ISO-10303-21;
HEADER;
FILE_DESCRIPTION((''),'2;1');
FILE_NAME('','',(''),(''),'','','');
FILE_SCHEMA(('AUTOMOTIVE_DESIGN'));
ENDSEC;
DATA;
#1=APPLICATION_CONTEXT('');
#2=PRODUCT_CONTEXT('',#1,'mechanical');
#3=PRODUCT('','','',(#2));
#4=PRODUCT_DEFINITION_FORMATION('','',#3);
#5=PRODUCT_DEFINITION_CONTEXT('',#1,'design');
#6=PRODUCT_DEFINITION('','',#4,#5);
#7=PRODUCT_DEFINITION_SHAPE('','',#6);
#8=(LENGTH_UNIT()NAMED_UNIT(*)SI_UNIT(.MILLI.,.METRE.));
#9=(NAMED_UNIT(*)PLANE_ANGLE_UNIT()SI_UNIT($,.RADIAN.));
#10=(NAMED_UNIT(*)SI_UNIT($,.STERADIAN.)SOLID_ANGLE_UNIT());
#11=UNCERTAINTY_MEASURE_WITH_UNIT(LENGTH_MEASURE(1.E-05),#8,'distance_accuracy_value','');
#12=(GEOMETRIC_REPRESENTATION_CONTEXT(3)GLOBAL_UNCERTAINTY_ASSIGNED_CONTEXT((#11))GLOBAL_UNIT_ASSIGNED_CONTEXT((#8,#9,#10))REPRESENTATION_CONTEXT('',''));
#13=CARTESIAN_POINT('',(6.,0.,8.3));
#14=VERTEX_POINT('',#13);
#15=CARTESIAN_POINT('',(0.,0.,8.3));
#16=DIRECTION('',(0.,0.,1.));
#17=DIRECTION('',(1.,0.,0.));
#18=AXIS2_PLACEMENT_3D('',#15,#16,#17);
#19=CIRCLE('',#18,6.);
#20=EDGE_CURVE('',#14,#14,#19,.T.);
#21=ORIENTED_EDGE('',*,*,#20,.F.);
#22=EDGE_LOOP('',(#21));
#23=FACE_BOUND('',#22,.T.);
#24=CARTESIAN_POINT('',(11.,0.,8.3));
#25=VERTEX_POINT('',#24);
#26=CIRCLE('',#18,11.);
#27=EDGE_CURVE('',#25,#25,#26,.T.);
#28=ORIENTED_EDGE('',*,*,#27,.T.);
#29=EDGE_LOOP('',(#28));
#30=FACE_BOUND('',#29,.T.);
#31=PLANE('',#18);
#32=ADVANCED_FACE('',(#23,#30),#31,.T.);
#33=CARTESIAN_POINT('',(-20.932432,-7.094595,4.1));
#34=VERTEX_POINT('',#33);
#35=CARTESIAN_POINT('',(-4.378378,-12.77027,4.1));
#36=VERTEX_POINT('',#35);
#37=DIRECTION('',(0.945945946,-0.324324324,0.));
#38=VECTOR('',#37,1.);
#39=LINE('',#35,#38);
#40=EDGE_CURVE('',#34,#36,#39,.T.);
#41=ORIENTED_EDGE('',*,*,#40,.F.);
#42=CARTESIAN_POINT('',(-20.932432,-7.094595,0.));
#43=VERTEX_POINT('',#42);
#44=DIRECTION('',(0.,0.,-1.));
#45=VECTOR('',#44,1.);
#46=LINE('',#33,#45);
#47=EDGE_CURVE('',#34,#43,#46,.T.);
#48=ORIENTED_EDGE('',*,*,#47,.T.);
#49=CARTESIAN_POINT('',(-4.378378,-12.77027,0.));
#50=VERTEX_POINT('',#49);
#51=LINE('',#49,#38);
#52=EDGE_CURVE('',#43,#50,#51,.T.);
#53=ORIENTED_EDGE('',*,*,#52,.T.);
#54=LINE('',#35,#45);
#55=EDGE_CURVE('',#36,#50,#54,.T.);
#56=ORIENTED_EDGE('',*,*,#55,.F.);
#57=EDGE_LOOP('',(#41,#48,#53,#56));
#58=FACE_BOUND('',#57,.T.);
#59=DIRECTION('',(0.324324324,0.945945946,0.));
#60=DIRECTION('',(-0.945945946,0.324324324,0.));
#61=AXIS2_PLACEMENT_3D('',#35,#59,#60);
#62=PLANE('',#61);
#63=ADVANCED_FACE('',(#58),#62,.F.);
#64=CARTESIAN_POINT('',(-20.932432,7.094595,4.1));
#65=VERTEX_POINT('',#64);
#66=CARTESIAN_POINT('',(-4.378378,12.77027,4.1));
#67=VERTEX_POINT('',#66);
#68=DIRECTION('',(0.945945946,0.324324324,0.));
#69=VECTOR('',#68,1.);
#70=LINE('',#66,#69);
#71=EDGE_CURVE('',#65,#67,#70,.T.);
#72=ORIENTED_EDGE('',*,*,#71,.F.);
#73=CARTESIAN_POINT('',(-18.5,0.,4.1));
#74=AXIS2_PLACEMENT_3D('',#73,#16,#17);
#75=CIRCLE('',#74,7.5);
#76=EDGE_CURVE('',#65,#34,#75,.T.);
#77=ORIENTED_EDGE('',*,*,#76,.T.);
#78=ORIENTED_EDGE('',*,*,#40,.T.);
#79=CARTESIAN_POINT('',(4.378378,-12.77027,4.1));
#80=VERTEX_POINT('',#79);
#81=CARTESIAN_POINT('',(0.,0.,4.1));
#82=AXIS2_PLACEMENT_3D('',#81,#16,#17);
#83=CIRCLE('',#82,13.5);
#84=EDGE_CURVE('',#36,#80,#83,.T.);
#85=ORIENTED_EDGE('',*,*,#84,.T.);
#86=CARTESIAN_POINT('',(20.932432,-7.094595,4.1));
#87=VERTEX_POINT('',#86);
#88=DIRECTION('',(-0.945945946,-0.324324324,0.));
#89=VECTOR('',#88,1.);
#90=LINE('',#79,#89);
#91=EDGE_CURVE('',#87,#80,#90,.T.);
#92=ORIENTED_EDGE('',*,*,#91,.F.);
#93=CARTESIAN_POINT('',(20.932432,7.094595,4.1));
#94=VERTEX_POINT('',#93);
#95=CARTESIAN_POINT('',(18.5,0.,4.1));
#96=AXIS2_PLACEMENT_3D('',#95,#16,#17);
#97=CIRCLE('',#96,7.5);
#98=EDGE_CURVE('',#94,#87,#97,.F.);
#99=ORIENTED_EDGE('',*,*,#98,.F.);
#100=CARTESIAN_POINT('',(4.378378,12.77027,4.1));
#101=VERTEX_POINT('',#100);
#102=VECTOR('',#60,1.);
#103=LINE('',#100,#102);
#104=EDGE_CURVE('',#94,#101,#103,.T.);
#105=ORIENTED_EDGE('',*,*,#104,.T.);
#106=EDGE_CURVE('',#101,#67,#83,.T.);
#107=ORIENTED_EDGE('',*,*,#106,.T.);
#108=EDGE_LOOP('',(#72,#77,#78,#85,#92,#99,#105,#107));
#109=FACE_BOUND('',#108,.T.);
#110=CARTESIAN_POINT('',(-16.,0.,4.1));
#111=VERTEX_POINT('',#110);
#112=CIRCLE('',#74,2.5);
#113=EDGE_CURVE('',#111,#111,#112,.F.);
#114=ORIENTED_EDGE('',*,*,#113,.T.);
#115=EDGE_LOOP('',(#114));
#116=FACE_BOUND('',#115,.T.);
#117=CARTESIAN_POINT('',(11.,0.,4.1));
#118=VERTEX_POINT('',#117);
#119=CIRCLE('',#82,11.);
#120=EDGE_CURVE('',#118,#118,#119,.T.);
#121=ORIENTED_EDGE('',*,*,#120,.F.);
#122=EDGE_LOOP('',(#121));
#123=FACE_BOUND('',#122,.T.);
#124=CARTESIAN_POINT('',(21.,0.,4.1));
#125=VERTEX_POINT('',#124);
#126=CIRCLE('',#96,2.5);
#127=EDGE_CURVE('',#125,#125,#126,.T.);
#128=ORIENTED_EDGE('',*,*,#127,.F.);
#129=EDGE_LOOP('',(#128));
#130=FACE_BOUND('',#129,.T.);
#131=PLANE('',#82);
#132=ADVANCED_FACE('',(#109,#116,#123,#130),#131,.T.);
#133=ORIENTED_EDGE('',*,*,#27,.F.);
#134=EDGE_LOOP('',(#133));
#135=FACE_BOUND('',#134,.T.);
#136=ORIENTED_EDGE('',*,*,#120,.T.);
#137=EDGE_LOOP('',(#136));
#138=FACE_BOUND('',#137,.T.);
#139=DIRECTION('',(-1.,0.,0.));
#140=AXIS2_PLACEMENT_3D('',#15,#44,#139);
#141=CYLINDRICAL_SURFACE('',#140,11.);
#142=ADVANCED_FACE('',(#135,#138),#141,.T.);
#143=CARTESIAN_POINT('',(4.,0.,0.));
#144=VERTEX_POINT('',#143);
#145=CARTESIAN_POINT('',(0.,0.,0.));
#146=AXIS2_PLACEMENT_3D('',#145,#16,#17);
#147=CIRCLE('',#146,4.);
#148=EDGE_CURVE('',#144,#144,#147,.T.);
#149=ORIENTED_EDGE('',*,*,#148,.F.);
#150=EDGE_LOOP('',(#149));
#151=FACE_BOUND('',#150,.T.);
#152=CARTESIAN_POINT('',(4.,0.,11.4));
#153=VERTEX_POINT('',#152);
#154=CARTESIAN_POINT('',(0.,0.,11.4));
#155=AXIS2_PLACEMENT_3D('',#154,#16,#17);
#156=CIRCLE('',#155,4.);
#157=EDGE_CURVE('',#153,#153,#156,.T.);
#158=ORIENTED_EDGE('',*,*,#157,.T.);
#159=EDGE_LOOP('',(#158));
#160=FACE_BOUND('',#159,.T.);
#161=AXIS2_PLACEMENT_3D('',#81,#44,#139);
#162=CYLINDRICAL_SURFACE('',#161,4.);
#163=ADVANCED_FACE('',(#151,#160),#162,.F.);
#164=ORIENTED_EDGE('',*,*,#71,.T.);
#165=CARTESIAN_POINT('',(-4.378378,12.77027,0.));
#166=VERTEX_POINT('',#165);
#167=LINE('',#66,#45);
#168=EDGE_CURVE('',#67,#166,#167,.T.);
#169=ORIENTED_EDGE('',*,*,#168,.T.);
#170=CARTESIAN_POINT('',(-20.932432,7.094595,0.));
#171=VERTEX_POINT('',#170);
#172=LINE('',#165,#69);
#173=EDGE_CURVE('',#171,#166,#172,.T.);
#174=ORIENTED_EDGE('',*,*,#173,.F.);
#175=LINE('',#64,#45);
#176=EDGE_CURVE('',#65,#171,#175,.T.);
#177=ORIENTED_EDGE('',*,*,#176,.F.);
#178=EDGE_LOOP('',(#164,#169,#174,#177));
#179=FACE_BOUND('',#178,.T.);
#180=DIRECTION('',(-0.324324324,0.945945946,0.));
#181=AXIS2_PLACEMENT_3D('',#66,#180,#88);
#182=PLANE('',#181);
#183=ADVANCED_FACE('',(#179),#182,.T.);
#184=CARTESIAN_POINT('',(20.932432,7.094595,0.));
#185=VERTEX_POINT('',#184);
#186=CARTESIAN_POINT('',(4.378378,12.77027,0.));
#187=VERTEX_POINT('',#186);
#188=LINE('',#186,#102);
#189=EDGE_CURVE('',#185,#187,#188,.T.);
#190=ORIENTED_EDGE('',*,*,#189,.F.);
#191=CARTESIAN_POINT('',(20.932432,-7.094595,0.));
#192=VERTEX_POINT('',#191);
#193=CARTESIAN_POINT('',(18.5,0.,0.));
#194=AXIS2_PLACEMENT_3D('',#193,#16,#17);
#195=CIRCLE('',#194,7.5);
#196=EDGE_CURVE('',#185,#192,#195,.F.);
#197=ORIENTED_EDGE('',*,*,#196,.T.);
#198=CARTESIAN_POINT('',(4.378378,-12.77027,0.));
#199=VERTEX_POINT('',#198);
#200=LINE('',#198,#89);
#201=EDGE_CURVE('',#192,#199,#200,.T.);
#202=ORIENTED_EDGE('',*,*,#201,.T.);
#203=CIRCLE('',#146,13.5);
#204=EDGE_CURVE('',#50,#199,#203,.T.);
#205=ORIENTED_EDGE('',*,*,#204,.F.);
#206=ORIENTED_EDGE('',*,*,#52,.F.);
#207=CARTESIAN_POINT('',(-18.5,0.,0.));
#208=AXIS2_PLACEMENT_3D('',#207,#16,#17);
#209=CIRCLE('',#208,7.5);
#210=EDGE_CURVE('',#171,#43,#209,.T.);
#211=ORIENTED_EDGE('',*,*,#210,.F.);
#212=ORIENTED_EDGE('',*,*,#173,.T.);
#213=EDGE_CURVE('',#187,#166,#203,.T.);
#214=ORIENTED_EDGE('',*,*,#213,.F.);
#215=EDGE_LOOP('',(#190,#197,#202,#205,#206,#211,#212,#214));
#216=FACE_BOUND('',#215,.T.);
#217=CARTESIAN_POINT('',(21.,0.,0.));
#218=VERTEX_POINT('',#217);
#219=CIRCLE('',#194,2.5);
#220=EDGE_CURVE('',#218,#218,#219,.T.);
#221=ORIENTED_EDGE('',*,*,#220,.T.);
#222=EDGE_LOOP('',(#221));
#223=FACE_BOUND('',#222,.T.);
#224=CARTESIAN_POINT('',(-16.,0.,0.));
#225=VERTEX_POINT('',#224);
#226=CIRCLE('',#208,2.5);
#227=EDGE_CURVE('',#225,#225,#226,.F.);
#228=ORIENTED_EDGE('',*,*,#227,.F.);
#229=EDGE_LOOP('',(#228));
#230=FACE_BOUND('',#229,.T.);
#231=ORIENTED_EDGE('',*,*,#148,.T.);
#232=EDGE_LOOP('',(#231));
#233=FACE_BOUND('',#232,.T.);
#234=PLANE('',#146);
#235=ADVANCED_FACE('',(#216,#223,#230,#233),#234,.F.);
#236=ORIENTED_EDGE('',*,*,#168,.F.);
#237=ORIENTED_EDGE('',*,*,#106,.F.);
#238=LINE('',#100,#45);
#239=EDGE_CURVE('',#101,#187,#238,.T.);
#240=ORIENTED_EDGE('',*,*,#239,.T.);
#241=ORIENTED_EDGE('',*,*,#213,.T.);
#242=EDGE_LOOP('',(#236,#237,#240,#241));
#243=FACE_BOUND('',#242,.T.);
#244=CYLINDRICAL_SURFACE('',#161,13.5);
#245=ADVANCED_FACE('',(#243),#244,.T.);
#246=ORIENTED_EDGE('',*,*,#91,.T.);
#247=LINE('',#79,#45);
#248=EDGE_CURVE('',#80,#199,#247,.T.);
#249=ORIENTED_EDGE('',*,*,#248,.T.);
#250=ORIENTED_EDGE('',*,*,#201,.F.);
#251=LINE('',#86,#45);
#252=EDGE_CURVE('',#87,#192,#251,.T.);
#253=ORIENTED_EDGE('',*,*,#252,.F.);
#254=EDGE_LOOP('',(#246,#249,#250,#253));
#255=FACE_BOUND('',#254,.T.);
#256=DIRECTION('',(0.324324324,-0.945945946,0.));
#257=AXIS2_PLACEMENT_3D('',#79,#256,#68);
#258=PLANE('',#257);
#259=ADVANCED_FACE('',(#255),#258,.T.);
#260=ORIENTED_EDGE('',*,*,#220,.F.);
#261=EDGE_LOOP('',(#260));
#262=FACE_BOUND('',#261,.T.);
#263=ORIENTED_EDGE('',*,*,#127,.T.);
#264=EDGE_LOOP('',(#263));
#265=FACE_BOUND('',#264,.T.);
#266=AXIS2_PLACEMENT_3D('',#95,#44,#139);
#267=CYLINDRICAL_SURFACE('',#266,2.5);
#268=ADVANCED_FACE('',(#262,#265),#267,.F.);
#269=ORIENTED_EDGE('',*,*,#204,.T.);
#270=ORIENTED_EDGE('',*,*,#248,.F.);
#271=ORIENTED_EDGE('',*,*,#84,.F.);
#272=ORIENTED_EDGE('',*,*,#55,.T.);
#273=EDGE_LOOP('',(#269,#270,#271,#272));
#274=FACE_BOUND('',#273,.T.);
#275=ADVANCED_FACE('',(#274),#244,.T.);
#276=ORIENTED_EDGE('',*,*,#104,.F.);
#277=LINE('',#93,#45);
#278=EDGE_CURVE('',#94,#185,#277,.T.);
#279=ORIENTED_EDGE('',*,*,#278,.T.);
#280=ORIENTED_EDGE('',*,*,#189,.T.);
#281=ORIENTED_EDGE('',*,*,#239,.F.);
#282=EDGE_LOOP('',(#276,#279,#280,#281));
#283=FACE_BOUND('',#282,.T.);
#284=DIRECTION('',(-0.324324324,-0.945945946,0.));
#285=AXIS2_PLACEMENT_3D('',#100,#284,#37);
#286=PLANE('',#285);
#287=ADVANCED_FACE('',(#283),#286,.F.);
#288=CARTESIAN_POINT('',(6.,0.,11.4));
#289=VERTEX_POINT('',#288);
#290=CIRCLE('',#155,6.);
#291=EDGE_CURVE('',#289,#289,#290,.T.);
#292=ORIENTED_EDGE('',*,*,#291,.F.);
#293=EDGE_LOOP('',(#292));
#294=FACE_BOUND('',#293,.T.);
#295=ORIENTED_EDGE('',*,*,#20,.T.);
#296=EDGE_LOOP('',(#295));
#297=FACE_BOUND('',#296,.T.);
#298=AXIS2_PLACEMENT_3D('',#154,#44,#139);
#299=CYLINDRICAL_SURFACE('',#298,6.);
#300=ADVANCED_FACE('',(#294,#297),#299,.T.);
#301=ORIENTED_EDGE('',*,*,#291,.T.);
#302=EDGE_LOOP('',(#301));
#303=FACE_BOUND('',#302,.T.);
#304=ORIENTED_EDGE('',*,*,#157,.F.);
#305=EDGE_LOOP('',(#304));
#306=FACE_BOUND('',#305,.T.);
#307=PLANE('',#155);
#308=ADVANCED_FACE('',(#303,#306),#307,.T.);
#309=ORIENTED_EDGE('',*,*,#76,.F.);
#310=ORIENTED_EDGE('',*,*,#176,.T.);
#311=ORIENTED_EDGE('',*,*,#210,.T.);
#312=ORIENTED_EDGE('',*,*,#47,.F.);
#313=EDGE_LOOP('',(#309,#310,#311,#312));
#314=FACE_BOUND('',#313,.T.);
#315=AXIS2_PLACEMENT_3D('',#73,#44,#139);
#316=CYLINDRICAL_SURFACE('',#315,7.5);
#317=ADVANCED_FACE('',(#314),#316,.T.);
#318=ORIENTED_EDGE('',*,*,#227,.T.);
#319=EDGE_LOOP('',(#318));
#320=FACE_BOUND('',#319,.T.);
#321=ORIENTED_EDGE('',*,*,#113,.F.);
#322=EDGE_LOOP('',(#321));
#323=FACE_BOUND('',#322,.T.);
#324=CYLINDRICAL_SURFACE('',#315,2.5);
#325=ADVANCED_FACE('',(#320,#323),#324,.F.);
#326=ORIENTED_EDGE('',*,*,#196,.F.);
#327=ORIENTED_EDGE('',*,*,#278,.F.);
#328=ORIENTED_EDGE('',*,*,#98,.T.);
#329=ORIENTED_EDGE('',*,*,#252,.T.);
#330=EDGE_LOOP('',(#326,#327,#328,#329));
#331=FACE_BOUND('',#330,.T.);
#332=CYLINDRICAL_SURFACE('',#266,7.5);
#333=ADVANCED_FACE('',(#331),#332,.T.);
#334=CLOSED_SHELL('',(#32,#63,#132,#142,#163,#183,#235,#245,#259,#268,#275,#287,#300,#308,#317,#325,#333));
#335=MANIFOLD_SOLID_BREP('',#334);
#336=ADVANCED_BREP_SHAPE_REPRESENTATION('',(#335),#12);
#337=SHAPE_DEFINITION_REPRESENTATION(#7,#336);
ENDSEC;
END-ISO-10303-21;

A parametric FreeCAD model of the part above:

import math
import FreeCAD as App
import Part
import Sketcher
from FreeCAD import Vector

doc = App.newDocument("Part")
params = doc.addObject("Spreadsheet::Sheet", "Params")
for row, (alias, value) in enumerate([
    ("sketch1_diameter", "5 mm"),
    ("sketch1_diameter2", "8 mm"),
    ("sketch1_radius", "7.5 mm"),
    ("sketch1_radius2", "13.5 mm"),
    ("pad1_length", "4.1 mm"),
    ("sketch2_diameter", "12 mm"),
    ("sketch2_diameter2", "8 mm"),
    ("pad2_length", "11.4 mm"),
    ("sketch3_diameter", "22 mm"),
    ("sketch3_diameter2", "12 mm"),
    ("pad3_length", "4.2 mm"),
], start=1):
    params.set(f"A{row}", alias)
    params.set(f"B{row}", "=" + value)
    params.setAlias(f"B{row}", alias)

body = doc.addObject("PartDesign::Body", "Body")

# Sketch on XY plane
sketch1 = body.newObject("Sketcher::SketchObject", "Sketch")
sketch1.AttachmentSupport = (doc.getObject("XY_Plane"), [""])
sketch1.MapMode = "FlatFace"
sketch1.addGeometry([
    Part.ArcOfCircle(Part.Circle(Vector(18.5, 0, 0), Vector(0, 0, 1), 7.5), math.radians(-71), math.radians(71)),  # 0
    Part.LineSegment(Vector(20.9, 7.1, 0), Vector(4.4, 12.8, 0)),  # 1
    Part.ArcOfCircle(Part.Circle(Vector(0, 0, 0), Vector(0, 0, 1), 13.5), math.radians(71), math.radians(109)),  # 2
    Part.LineSegment(Vector(-4.4, 12.8, 0), Vector(-20.9, 7.1, 0)),  # 3
    Part.ArcOfCircle(Part.Circle(Vector(-18.5, 0, 0), Vector(0, 0, 1), 7.5), math.radians(109), math.radians(251)),  # 4
    Part.LineSegment(Vector(-20.9, -7.1, 0), Vector(-4.4, -12.8, 0)),  # 5
    Part.ArcOfCircle(Part.Circle(Vector(0, 0, 0), Vector(0, 0, 1), 13.5), math.radians(-109), math.radians(-71)),  # 6
    Part.LineSegment(Vector(4.4, -12.8, 0), Vector(20.9, -7.1, 0)),  # 7
    Part.Circle(Vector(-18.5, 0, 0), Vector(0, 0, 1), 2.5),  # 8
    Part.Circle(Vector(0, 0, 0), Vector(0, 0, 1), 4),  # 9
    Part.Circle(Vector(18.5, 0, 0), Vector(0, 0, 1), 2.5),  # 10
], False)
sketch1.addConstraint([
    Sketcher.Constraint("Tangent", 0, 2, 1, 1),
    Sketcher.Constraint("Tangent", 1, 2, 2, 1),
    Sketcher.Constraint("Tangent", 2, 2, 3, 1),
    Sketcher.Constraint("Tangent", 3, 2, 4, 1),
    Sketcher.Constraint("Tangent", 4, 2, 5, 1),
    Sketcher.Constraint("Tangent", 5, 2, 6, 1),
    Sketcher.Constraint("Tangent", 6, 2, 7, 1),
    Sketcher.Constraint("Tangent", 7, 2, 0, 1),
    Sketcher.Constraint("Coincident", 2, 3, -1, 1),
    Sketcher.Constraint("Coincident", 6, 3, -1, 1),
    Sketcher.Constraint("Coincident", 9, 3, -1, 1),
    Sketcher.Constraint("Coincident", 8, 3, 4, 3),
    Sketcher.Constraint("Coincident", 10, 3, 0, 3),
    Sketcher.Constraint("Equal", 0, 4),
    Sketcher.Constraint("Equal", 2, 6),
    Sketcher.Constraint("Equal", 8, 10),
    Sketcher.Constraint("Symmetric", 0, 3, 4, 3, -1, 1),
    Sketcher.Constraint("PointOnObject", 0, 3, -1),
    Sketcher.Constraint("Diameter", 8, 5.0),
    Sketcher.Constraint("Diameter", 9, 8.0),
    Sketcher.Constraint("Radius", 0, 7.5),
    Sketcher.Constraint("Radius", 2, 13.5),
    Sketcher.Constraint("DistanceX", 4, 3, 0, 3, 37.0),
])
sketch1.setExpression("Constraints[18]", "Params.sketch1_diameter")
sketch1.setExpression("Constraints[19]", "Params.sketch1_diameter2")
sketch1.setExpression("Constraints[20]", "Params.sketch1_radius")
sketch1.setExpression("Constraints[21]", "Params.sketch1_radius2")
pad1 = body.newObject("PartDesign::Pad", "Pad")
pad1.Profile = sketch1
pad1.setExpression("Length", "Params.pad1_length")

# Sketch on XY plane
sketch2 = body.newObject("Sketcher::SketchObject", "Sketch001")
sketch2.AttachmentSupport = (doc.getObject("XY_Plane"), [""])
sketch2.MapMode = "FlatFace"
sketch2.addGeometry([
    Part.Circle(Vector(0, 0, 0), Vector(0, 0, 1), 6),
    Part.Circle(Vector(0, 0, 0), Vector(0, 0, 1), 4),
], False)
sketch2.addConstraint([
    Sketcher.Constraint("Coincident", 0, 3, -1, 1),
    Sketcher.Constraint("Coincident", 1, 3, -1, 1),
    Sketcher.Constraint("Diameter", 0, 12.0),
    Sketcher.Constraint("Diameter", 1, 8.0),
])
sketch2.setExpression("Constraints[2]", "Params.sketch2_diameter")
sketch2.setExpression("Constraints[3]", "Params.sketch2_diameter2")
pad2 = body.newObject("PartDesign::Pad", "Pad001")
pad2.Profile = sketch2
pad2.setExpression("Length", "Params.pad2_length")

# Sketch on XY plane
sketch3 = body.newObject("Sketcher::SketchObject", "Sketch002")
sketch3.AttachmentSupport = (doc.getObject("XY_Plane"), [""])
sketch3.MapMode = "FlatFace"
sketch3.AttachmentOffset = App.Placement(Vector(0, 0, 4.1), App.Rotation())
sketch3.addGeometry([
    Part.Circle(Vector(0, 0, 0), Vector(0, 0, 1), 11),
    Part.Circle(Vector(0, 0, 0), Vector(0, 0, 1), 6),
], False)
sketch3.addConstraint([
    Sketcher.Constraint("Coincident", 0, 3, -1, 1),
    Sketcher.Constraint("Coincident", 1, 3, -1, 1),
    Sketcher.Constraint("Diameter", 0, 22.0),
    Sketcher.Constraint("Diameter", 1, 12.0),
])
sketch3.setExpression("Constraints[2]", "Params.sketch3_diameter")
sketch3.setExpression("Constraints[3]", "Params.sketch3_diameter2")
pad3 = body.newObject("PartDesign::Pad", "Pad002")
pad3.Profile = sketch3
pad3.setExpression("Length", "Params.pad3_length")

doc.recompute()
